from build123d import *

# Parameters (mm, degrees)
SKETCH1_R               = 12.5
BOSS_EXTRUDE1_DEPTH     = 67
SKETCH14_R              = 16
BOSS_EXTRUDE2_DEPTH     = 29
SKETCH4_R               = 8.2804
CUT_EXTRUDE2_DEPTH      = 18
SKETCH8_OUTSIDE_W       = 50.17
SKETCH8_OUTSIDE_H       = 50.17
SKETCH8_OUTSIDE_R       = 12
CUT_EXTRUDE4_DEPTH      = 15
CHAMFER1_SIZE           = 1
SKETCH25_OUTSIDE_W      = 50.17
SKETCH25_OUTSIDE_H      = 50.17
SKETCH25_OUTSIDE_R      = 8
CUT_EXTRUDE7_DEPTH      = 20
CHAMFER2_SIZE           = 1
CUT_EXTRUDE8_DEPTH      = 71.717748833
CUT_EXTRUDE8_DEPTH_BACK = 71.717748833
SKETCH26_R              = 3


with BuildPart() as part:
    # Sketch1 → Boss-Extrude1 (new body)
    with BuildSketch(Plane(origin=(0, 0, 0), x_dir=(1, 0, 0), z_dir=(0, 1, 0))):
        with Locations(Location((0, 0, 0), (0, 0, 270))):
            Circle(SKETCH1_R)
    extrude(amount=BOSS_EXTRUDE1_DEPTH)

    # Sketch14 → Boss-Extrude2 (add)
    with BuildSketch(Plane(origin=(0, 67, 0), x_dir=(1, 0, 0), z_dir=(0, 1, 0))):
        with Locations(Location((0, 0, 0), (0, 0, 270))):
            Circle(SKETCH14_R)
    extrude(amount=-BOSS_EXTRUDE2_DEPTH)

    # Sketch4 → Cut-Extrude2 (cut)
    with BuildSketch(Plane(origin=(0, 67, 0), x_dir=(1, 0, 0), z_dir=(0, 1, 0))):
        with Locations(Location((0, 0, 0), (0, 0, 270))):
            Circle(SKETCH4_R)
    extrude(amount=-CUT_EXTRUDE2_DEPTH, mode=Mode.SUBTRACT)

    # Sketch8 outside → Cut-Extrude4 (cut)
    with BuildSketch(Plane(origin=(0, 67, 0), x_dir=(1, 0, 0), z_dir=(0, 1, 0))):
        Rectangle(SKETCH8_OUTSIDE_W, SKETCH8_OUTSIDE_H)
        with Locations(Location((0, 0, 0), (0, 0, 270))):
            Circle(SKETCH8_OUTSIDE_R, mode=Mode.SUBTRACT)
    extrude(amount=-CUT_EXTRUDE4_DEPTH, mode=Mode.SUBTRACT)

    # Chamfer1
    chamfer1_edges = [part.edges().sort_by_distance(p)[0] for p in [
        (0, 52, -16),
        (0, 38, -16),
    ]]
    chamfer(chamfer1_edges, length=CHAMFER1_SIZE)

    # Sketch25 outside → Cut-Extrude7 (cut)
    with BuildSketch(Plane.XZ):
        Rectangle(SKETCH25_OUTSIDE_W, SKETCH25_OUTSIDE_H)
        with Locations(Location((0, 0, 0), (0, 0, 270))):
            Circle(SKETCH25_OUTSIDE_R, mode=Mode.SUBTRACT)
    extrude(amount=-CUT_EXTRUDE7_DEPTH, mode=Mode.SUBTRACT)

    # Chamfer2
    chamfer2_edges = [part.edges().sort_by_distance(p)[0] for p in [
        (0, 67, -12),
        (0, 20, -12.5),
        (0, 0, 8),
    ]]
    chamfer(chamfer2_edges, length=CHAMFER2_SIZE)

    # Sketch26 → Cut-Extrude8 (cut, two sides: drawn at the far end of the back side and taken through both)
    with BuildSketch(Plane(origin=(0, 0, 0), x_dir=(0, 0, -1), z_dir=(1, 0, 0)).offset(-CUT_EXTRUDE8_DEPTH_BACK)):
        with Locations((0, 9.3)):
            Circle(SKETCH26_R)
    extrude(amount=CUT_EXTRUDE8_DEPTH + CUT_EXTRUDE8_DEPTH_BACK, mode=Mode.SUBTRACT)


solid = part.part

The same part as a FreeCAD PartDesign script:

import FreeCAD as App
import Part
import Sketcher


def edges_at(feature, points):
    """Names of the edges that pass closest to the given points."""
    edges = feature.Shape.Edges
    near = lambda p: min(range(len(edges)), key=lambda i: edges[i].distToShape(Part.Vertex(*p))[0])
    return sorted({f"Edge{near(p) + 1}" for p in points})


def add_polygon(sketch, points):
    """Adds a closed chain of lines whose ends are joined by coincident constraints."""
    first, n = sketch.GeometryCount, len(points)
    for a, b in zip(points, points[1:] + points[:1]):
        sketch.addGeometry(Part.LineSegment(App.Vector(*a, 0), App.Vector(*b, 0)), False)
    for i in range(n):
        sketch.addConstraint(Sketcher.Constraint("Coincident", first + i, 2, first + (i + 1) % n, 1))

doc = App.newDocument("Part")
body = doc.addObject("PartDesign::Body", "Body")

# Sketch on XZ plane
sketch1 = body.newObject("Sketcher::SketchObject", "Sketch")
sketch1.AttachmentSupport = (doc.getObject("XZ_Plane"), [""])
sketch1.MapMode = "FlatFace"
sketch1.addGeometry(Part.Circle(App.Vector(0, 0, 0), App.Vector(0, 0, 1), 12), False)
sketch1.addConstraint([
    Sketcher.Constraint("Coincident", 0, 3, -1, 1),
    Sketcher.Constraint("Diameter", 0, 25.0),
])
pad1 = body.newObject("PartDesign::Pad", "Pad")
pad1.Profile = sketch1
pad1.Length = 67
pad1.Reversed = True

# Sketch on XZ plane
sketch2 = body.newObject("Sketcher::SketchObject", "Sketch001")
sketch2.AttachmentSupport = (doc.getObject("XZ_Plane"), [""])
sketch2.MapMode = "FlatFace"
sketch2.AttachmentOffset = App.Placement(App.Vector(0, 0, -67), App.Rotation())
sketch2.addGeometry(Part.Circle(App.Vector(0, 0, 0), App.Vector(0, 0, 1), 16), False)
sketch2.addConstraint([
    Sketcher.Constraint("Coincident", 0, 3, -1, 1),
    Sketcher.Constraint("Diameter", 0, 32.0),
])
pad2 = body.newObject("PartDesign::Pad", "Pad001")
pad2.Profile = sketch2
pad2.Length = 29

# Sketch on XZ plane
sketch3 = body.newObject("Sketcher::SketchObject", "Sketch002")
sketch3.AttachmentSupport = (doc.getObject("XZ_Plane"), [""])
sketch3.MapMode = "FlatFace"
sketch3.AttachmentOffset = App.Placement(App.Vector(0, 0, -67), App.Rotation())
sketch3.addGeometry(Part.Circle(App.Vector(0, 0, 0), App.Vector(0, 0, 1), 8), False)
sketch3.addConstraint([
    Sketcher.Constraint("Coincident", 0, 3, -1, 1),
    Sketcher.Constraint("Diameter", 0, 16.5608),
])
pocket1 = body.newObject("PartDesign::Pocket", "Pocket")
pocket1.Profile = sketch3
pocket1.Length = 18
pocket1.Reversed = True

# Sketch on XZ plane
sketch4 = body.newObject("Sketcher::SketchObject", "Sketch003")
sketch4.AttachmentSupport = (doc.getObject("XZ_Plane"), [""])
sketch4.MapMode = "FlatFace"
sketch4.AttachmentOffset = App.Placement(App.Vector(0, 0, -67), App.Rotation())
add_polygon(sketch4, [(-25, -25), (-25, 25), (25, 25), (25, -25)])  # lines 0-3
sketch4.addGeometry(Part.Circle(App.Vector(0, 0, 0), App.Vector(0, 0, 1), 12), False)  # 4
sketch4.addConstraint([
    Sketcher.Constraint("Vertical", 0),
    Sketcher.Constraint("Horizontal", 1),
    Sketcher.Constraint("Vertical", 2),
    Sketcher.Constraint("Horizontal", 3),
    Sketcher.Constraint("Coincident", 4, 3, -1, 1),
    Sketcher.Constraint("Symmetric", 0, 2, 2, 2, -1, 1),
    Sketcher.Constraint("Equal", 3, 0),
    Sketcher.Constraint("Diameter", 4, 24.0),
    Sketcher.Constraint("DistanceX", 1, 1, 1, 2, 50.17),
])
pocket2 = body.newObject("PartDesign::Pocket", "Pocket001")
pocket2.Profile = sketch4
pocket2.Length = 15
pocket2.Reversed = True
doc.recompute()

chamfer = body.newObject("PartDesign::Chamfer", "Chamfer")
chamfer.Base = (pocket2, edges_at(pocket2, [(0, 52, -16), (0, 38, -16)]))
chamfer.Size = 1

# Sketch on XZ plane
sketch5 = body.newObject("Sketcher::SketchObject", "Sketch004")
sketch5.AttachmentSupport = (doc.getObject("XZ_Plane"), [""])
sketch5.MapMode = "FlatFace"
add_polygon(sketch5, [(-25, 25), (-25, -25), (25, -25), (25, 25)])  # lines 0-3
sketch5.addGeometry(Part.Circle(App.Vector(0, 0, 0), App.Vector(0, 0, 1), 8), False)  # 4
sketch5.addConstraint([
    Sketcher.Constraint("Vertical", 0),
    Sketcher.Constraint("Horizontal", 1),
    Sketcher.Constraint("Vertical", 2),
    Sketcher.Constraint("Horizontal", 3),
    Sketcher.Constraint("Coincident", 4, 3, -1, 1),
    Sketcher.Constraint("Symmetric", 0, 2, 2, 2, -1, 1),
    Sketcher.Constraint("Equal", 3, 0),
    Sketcher.Constraint("Diameter", 4, 16.0),
    Sketcher.Constraint("DistanceX", 1, 1, 1, 2, 50.17),
])
pocket3 = body.newObject("PartDesign::Pocket", "Pocket002")
pocket3.Profile = sketch5
pocket3.Length = 20
doc.recompute()

chamfer2 = body.newObject("PartDesign::Chamfer", "Chamfer001")
chamfer2.Base = (pocket3, edges_at(pocket3, [(0, 67, -12), (0, 20, -12.5), (0, 0, 8)]))
chamfer2.Size = 1

# Sketch on YZ plane
sketch6 = body.newObject("Sketcher::SketchObject", "Sketch005")
sketch6.AttachmentSupport = (doc.getObject("YZ_Plane"), [""])
sketch6.MapMode = "FlatFace"
sketch6.addGeometry(Part.Circle(App.Vector(9.3, 0, 0), App.Vector(0, 0, 1), 3), False)
sketch6.addConstraint([
    Sketcher.Constraint("PointOnObject", 0, 3, -1),
    Sketcher.Constraint("Diameter", 0, 6.0),
    Sketcher.Constraint("DistanceX", -1, 1, 0, 3, 9.3),
])
pocket4 = body.newObject("PartDesign::Pocket", "Pocket003")
pocket4.Profile = sketch6
pocket4.Type = "ThroughAll"
pocket4.Midplane = True

doc.recompute()
